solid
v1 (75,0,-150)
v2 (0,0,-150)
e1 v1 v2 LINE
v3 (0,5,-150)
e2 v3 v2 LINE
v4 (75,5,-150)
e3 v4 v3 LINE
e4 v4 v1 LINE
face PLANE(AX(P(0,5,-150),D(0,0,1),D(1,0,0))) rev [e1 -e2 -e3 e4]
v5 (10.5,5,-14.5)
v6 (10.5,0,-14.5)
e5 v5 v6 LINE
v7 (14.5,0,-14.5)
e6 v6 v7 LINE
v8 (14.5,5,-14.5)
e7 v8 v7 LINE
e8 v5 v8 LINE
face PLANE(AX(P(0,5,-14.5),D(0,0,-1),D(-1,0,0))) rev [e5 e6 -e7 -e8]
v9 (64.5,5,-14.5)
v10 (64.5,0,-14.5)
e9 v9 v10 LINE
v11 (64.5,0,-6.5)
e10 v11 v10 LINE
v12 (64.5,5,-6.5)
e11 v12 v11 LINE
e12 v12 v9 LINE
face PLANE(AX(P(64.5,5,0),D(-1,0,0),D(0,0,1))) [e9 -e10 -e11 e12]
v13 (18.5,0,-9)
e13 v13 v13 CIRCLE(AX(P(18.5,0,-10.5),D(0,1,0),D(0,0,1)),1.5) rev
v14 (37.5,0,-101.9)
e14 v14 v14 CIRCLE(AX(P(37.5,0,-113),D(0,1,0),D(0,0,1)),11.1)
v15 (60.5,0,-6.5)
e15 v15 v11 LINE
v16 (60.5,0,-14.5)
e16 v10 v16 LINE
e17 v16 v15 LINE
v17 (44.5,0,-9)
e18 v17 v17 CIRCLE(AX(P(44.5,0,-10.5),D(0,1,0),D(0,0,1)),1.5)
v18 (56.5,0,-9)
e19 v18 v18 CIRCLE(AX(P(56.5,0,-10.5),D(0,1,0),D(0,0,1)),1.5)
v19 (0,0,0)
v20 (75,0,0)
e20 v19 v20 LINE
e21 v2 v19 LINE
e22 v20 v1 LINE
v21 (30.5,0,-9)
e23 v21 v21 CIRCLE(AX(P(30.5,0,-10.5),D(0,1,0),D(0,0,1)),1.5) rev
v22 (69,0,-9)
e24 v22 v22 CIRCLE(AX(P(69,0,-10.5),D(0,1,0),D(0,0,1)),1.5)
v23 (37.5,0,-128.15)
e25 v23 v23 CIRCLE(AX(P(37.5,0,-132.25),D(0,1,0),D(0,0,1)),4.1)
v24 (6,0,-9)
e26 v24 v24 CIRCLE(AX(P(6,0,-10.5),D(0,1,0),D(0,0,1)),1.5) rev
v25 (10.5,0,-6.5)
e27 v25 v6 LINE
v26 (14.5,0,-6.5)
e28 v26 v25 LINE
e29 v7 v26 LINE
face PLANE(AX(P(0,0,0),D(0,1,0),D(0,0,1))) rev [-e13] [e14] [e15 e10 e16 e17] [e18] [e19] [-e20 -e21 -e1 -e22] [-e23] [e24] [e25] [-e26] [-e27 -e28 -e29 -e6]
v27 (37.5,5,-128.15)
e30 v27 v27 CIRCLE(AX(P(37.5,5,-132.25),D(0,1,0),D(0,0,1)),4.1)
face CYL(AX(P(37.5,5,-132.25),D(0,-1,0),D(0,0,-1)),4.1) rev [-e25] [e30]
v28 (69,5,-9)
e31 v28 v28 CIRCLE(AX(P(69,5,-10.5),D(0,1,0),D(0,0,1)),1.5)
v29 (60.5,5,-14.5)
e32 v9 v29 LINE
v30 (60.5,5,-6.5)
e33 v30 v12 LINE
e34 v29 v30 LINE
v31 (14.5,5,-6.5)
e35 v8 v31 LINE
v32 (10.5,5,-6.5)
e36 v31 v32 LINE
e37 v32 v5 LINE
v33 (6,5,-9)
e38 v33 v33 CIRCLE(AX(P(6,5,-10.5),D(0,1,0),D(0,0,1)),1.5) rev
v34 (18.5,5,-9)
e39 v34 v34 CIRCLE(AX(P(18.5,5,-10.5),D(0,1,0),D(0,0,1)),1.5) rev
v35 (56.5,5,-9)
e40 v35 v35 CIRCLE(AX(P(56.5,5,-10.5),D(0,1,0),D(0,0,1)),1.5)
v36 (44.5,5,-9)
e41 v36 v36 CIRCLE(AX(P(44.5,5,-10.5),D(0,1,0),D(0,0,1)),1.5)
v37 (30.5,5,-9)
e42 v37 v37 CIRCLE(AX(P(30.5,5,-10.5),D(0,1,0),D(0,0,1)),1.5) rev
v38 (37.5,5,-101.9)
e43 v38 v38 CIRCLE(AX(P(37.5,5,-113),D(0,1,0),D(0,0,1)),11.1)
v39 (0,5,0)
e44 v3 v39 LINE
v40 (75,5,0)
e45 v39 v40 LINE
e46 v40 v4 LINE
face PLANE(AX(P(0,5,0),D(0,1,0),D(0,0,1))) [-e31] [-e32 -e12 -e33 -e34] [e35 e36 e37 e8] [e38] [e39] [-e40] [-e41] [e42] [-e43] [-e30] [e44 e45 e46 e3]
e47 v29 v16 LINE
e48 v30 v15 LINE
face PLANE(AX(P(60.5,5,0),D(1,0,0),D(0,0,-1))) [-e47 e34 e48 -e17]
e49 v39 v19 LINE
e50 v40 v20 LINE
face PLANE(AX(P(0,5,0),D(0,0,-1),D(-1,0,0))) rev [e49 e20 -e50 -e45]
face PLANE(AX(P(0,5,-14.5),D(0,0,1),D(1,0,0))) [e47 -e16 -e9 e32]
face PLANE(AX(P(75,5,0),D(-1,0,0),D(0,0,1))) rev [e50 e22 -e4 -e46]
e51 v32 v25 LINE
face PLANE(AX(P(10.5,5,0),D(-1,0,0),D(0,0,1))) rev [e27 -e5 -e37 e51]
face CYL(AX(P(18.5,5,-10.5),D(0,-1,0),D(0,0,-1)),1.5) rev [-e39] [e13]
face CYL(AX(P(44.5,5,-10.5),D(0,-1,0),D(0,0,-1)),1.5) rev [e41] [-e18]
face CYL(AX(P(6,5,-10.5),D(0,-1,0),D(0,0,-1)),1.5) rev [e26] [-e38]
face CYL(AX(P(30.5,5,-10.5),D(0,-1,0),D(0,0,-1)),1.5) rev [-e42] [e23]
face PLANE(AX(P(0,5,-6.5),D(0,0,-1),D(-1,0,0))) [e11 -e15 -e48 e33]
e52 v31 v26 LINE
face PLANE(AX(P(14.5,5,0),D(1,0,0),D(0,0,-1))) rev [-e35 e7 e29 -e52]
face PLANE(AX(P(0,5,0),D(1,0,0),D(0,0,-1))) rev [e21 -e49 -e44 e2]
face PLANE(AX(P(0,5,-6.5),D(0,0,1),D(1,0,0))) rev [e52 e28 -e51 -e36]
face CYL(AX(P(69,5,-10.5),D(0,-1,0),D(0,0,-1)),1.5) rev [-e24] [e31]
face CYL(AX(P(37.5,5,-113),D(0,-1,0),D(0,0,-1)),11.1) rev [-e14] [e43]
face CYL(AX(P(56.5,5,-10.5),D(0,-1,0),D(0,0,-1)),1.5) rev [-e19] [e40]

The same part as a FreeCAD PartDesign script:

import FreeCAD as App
import Part
import Sketcher

V = App.Vector
Q = App.Units.Quantity


def add_polygon(sketch, points):
    """Adds a closed chain of lines whose ends are joined by coincident constraints."""
    first, n = sketch.GeometryCount, len(points)
    for a, b in zip(points, points[1:] + points[:1]):
        sketch.addGeometry(Part.LineSegment(App.Vector(*a, 0), App.Vector(*b, 0)), False)
    for i in range(n):
        sketch.addConstraint(Sketcher.Constraint("Coincident", first + i, 2, first + (i + 1) % n, 1))

doc = App.newDocument("Part")
body = doc.addObject("PartDesign::Body", "Body")

# Sketch on XZ plane
sketch1 = doc.addObject("Sketcher::SketchObject", "Sketch")
body.addObject(sketch1)
sketch1.AttachmentSupport = (doc.XZ_Plane, [""])
sketch1.MapMode = "FlatFace"
add_polygon(sketch1, [(75, -150), (0, -150), (0, 0), (75, 0)])  # lines 0-3
sketch1.addGeometry(Part.Circle(V(6, -10.5, 0), V(0, 0, 1), 1.5), False)  # 4
add_polygon(sketch1, [(14.5, -6.5), (10.5, -6.5), (10.5, -14.5), (14.5, -14.5)])  # lines 5-8
sketch1.addGeometry(Part.Circle(V(18.5, -10.5, 0), V(0, 0, 1), 1.5), False)  # 9
sketch1.addGeometry(Part.Circle(V(30.5, -10.5, 0), V(0, 0, 1), 1.5), False)  # 10
sketch1.addGeometry(Part.Circle(V(44.5, -10.5, 0), V(0, 0, 1), 1.5), False)  # 11
sketch1.addGeometry(Part.Circle(V(56.5, -10.5, 0), V(0, 0, 1), 1.5), False)  # 12
add_polygon(sketch1, [(64.5, -6.5), (60.5, -6.5), (60.5, -14.5), (64.5, -14.5)])  # lines 13-16
sketch1.addGeometry(Part.Circle(V(69, -10.5, 0), V(0, 0, 1), 1.5), False)  # 17
sketch1.addGeometry(Part.Circle(V(37.5, -113, 0), V(0, 0, 1), 11.1), False)  # 18
sketch1.addGeometry(Part.Circle(V(37.5, -132.25, 0), V(0, 0, 1), 4.1), False)  # 19
sketch1.addConstraint([
    Sketcher.Constraint("Horizontal", 0),
    Sketcher.Constraint("Vertical", 1),
    Sketcher.Constraint("Horizontal", 2),
    Sketcher.Constraint("Vertical", 3),
    Sketcher.Constraint("Horizontal", 5),
    Sketcher.Constraint("Vertical", 6),
    Sketcher.Constraint("Horizontal", 7),
    Sketcher.Constraint("Vertical", 8),
    Sketcher.Constraint("Horizontal", 13),
    Sketcher.Constraint("Vertical", 14),
    Sketcher.Constraint("Horizontal", 15),
    Sketcher.Constraint("Vertical", 16),
    Sketcher.Constraint("Coincident", 1, 2, -1, 1),
    Sketcher.Constraint("Equal", 4, 9),
    Sketcher.Constraint("Equal", 9, 10),
    Sketcher.Constraint("Equal", 10, 11),
    Sketcher.Constraint("Equal", 11, 12),
    Sketcher.Constraint("Equal", 12, 17),
    Sketcher.Constraint("Horizontal", 4, 3, 9, 3),
    Sketcher.Constraint("Horizontal", 9, 3, 10, 3),
    Sketcher.Constraint("Horizontal", 10, 3, 11, 3),
    Sketcher.Constraint("Horizontal", 11, 3, 12, 3),
    Sketcher.Constraint("Horizontal", 12, 3, 17, 3),
    Sketcher.Constraint("Horizontal", 8, 2, 13, 2),
    Sketcher.Constraint("Horizontal", 7, 2, 14, 2),
    Sketcher.Constraint("Vertical", 18, 3, 19, 3),
    Sketcher.Constraint("Equal", 7, 13),
    Sketcher.Constraint("Diameter", 4, Q("3 mm")),
    Sketcher.Constraint("Diameter", 18, Q("22.2 mm")),
    Sketcher.Constraint("Diameter", 19, Q("8.2 mm")),
    Sketcher.Constraint("DistanceX", 0, 2, 0, 1, Q("75 mm")),
    Sketcher.Constraint("DistanceX", 5, 2, 5, 1, Q("4 mm")),
    Sketcher.Constraint("DistanceY", 1, 1, 1, 2, Q("150 mm")),
    Sketcher.Constraint("DistanceY", 6, 2, 6, 1, Q("8 mm")),
    Sketcher.Constraint("DistanceX", -1, 1, 4, 3, Q("6 mm")),
    Sketcher.Constraint("DistanceX", -1, 1, 17, 3, Q("69 mm")),
    Sketcher.Constraint("DistanceY", 18, 3, -1, 1, Q("113 mm")),
    Sketcher.Constraint("DistanceX", 9, 3, 10, 3, Q("12 mm")),
    Sketcher.Constraint("DistanceX", 10, 3, 11, 3, Q("14 mm")),
    Sketcher.Constraint("DistanceX", 11, 3, 12, 3, Q("12 mm")),
    Sketcher.Constraint("DistanceX", 10, 3, 18, 3, Q("7 mm")),
    Sketcher.Constraint("DistanceY", 4, 3, 5, 2, Q("4 mm")),
    Sketcher.Constraint("DistanceX", 5, 2, 9, 3, Q("8 mm")),
    Sketcher.Constraint("DistanceX", 12, 3, 13, 2, Q("4 mm")),
    Sketcher.Constraint("DistanceY", 4, 3, -1, 1, Q("10.5 mm")),
    Sketcher.Constraint("DistanceX", -1, 1, 9, 3, Q("18.5 mm")),
    Sketcher.Constraint("DistanceY", 19, 3, -1, 1, Q("132.25 mm")),
])
pad1 = doc.addObject("PartDesign::Pad", "Pad")
body.addObject(pad1)
pad1.Profile = sketch1
pad1.Length = 5
pad1.Reversed = True

doc.recompute()
